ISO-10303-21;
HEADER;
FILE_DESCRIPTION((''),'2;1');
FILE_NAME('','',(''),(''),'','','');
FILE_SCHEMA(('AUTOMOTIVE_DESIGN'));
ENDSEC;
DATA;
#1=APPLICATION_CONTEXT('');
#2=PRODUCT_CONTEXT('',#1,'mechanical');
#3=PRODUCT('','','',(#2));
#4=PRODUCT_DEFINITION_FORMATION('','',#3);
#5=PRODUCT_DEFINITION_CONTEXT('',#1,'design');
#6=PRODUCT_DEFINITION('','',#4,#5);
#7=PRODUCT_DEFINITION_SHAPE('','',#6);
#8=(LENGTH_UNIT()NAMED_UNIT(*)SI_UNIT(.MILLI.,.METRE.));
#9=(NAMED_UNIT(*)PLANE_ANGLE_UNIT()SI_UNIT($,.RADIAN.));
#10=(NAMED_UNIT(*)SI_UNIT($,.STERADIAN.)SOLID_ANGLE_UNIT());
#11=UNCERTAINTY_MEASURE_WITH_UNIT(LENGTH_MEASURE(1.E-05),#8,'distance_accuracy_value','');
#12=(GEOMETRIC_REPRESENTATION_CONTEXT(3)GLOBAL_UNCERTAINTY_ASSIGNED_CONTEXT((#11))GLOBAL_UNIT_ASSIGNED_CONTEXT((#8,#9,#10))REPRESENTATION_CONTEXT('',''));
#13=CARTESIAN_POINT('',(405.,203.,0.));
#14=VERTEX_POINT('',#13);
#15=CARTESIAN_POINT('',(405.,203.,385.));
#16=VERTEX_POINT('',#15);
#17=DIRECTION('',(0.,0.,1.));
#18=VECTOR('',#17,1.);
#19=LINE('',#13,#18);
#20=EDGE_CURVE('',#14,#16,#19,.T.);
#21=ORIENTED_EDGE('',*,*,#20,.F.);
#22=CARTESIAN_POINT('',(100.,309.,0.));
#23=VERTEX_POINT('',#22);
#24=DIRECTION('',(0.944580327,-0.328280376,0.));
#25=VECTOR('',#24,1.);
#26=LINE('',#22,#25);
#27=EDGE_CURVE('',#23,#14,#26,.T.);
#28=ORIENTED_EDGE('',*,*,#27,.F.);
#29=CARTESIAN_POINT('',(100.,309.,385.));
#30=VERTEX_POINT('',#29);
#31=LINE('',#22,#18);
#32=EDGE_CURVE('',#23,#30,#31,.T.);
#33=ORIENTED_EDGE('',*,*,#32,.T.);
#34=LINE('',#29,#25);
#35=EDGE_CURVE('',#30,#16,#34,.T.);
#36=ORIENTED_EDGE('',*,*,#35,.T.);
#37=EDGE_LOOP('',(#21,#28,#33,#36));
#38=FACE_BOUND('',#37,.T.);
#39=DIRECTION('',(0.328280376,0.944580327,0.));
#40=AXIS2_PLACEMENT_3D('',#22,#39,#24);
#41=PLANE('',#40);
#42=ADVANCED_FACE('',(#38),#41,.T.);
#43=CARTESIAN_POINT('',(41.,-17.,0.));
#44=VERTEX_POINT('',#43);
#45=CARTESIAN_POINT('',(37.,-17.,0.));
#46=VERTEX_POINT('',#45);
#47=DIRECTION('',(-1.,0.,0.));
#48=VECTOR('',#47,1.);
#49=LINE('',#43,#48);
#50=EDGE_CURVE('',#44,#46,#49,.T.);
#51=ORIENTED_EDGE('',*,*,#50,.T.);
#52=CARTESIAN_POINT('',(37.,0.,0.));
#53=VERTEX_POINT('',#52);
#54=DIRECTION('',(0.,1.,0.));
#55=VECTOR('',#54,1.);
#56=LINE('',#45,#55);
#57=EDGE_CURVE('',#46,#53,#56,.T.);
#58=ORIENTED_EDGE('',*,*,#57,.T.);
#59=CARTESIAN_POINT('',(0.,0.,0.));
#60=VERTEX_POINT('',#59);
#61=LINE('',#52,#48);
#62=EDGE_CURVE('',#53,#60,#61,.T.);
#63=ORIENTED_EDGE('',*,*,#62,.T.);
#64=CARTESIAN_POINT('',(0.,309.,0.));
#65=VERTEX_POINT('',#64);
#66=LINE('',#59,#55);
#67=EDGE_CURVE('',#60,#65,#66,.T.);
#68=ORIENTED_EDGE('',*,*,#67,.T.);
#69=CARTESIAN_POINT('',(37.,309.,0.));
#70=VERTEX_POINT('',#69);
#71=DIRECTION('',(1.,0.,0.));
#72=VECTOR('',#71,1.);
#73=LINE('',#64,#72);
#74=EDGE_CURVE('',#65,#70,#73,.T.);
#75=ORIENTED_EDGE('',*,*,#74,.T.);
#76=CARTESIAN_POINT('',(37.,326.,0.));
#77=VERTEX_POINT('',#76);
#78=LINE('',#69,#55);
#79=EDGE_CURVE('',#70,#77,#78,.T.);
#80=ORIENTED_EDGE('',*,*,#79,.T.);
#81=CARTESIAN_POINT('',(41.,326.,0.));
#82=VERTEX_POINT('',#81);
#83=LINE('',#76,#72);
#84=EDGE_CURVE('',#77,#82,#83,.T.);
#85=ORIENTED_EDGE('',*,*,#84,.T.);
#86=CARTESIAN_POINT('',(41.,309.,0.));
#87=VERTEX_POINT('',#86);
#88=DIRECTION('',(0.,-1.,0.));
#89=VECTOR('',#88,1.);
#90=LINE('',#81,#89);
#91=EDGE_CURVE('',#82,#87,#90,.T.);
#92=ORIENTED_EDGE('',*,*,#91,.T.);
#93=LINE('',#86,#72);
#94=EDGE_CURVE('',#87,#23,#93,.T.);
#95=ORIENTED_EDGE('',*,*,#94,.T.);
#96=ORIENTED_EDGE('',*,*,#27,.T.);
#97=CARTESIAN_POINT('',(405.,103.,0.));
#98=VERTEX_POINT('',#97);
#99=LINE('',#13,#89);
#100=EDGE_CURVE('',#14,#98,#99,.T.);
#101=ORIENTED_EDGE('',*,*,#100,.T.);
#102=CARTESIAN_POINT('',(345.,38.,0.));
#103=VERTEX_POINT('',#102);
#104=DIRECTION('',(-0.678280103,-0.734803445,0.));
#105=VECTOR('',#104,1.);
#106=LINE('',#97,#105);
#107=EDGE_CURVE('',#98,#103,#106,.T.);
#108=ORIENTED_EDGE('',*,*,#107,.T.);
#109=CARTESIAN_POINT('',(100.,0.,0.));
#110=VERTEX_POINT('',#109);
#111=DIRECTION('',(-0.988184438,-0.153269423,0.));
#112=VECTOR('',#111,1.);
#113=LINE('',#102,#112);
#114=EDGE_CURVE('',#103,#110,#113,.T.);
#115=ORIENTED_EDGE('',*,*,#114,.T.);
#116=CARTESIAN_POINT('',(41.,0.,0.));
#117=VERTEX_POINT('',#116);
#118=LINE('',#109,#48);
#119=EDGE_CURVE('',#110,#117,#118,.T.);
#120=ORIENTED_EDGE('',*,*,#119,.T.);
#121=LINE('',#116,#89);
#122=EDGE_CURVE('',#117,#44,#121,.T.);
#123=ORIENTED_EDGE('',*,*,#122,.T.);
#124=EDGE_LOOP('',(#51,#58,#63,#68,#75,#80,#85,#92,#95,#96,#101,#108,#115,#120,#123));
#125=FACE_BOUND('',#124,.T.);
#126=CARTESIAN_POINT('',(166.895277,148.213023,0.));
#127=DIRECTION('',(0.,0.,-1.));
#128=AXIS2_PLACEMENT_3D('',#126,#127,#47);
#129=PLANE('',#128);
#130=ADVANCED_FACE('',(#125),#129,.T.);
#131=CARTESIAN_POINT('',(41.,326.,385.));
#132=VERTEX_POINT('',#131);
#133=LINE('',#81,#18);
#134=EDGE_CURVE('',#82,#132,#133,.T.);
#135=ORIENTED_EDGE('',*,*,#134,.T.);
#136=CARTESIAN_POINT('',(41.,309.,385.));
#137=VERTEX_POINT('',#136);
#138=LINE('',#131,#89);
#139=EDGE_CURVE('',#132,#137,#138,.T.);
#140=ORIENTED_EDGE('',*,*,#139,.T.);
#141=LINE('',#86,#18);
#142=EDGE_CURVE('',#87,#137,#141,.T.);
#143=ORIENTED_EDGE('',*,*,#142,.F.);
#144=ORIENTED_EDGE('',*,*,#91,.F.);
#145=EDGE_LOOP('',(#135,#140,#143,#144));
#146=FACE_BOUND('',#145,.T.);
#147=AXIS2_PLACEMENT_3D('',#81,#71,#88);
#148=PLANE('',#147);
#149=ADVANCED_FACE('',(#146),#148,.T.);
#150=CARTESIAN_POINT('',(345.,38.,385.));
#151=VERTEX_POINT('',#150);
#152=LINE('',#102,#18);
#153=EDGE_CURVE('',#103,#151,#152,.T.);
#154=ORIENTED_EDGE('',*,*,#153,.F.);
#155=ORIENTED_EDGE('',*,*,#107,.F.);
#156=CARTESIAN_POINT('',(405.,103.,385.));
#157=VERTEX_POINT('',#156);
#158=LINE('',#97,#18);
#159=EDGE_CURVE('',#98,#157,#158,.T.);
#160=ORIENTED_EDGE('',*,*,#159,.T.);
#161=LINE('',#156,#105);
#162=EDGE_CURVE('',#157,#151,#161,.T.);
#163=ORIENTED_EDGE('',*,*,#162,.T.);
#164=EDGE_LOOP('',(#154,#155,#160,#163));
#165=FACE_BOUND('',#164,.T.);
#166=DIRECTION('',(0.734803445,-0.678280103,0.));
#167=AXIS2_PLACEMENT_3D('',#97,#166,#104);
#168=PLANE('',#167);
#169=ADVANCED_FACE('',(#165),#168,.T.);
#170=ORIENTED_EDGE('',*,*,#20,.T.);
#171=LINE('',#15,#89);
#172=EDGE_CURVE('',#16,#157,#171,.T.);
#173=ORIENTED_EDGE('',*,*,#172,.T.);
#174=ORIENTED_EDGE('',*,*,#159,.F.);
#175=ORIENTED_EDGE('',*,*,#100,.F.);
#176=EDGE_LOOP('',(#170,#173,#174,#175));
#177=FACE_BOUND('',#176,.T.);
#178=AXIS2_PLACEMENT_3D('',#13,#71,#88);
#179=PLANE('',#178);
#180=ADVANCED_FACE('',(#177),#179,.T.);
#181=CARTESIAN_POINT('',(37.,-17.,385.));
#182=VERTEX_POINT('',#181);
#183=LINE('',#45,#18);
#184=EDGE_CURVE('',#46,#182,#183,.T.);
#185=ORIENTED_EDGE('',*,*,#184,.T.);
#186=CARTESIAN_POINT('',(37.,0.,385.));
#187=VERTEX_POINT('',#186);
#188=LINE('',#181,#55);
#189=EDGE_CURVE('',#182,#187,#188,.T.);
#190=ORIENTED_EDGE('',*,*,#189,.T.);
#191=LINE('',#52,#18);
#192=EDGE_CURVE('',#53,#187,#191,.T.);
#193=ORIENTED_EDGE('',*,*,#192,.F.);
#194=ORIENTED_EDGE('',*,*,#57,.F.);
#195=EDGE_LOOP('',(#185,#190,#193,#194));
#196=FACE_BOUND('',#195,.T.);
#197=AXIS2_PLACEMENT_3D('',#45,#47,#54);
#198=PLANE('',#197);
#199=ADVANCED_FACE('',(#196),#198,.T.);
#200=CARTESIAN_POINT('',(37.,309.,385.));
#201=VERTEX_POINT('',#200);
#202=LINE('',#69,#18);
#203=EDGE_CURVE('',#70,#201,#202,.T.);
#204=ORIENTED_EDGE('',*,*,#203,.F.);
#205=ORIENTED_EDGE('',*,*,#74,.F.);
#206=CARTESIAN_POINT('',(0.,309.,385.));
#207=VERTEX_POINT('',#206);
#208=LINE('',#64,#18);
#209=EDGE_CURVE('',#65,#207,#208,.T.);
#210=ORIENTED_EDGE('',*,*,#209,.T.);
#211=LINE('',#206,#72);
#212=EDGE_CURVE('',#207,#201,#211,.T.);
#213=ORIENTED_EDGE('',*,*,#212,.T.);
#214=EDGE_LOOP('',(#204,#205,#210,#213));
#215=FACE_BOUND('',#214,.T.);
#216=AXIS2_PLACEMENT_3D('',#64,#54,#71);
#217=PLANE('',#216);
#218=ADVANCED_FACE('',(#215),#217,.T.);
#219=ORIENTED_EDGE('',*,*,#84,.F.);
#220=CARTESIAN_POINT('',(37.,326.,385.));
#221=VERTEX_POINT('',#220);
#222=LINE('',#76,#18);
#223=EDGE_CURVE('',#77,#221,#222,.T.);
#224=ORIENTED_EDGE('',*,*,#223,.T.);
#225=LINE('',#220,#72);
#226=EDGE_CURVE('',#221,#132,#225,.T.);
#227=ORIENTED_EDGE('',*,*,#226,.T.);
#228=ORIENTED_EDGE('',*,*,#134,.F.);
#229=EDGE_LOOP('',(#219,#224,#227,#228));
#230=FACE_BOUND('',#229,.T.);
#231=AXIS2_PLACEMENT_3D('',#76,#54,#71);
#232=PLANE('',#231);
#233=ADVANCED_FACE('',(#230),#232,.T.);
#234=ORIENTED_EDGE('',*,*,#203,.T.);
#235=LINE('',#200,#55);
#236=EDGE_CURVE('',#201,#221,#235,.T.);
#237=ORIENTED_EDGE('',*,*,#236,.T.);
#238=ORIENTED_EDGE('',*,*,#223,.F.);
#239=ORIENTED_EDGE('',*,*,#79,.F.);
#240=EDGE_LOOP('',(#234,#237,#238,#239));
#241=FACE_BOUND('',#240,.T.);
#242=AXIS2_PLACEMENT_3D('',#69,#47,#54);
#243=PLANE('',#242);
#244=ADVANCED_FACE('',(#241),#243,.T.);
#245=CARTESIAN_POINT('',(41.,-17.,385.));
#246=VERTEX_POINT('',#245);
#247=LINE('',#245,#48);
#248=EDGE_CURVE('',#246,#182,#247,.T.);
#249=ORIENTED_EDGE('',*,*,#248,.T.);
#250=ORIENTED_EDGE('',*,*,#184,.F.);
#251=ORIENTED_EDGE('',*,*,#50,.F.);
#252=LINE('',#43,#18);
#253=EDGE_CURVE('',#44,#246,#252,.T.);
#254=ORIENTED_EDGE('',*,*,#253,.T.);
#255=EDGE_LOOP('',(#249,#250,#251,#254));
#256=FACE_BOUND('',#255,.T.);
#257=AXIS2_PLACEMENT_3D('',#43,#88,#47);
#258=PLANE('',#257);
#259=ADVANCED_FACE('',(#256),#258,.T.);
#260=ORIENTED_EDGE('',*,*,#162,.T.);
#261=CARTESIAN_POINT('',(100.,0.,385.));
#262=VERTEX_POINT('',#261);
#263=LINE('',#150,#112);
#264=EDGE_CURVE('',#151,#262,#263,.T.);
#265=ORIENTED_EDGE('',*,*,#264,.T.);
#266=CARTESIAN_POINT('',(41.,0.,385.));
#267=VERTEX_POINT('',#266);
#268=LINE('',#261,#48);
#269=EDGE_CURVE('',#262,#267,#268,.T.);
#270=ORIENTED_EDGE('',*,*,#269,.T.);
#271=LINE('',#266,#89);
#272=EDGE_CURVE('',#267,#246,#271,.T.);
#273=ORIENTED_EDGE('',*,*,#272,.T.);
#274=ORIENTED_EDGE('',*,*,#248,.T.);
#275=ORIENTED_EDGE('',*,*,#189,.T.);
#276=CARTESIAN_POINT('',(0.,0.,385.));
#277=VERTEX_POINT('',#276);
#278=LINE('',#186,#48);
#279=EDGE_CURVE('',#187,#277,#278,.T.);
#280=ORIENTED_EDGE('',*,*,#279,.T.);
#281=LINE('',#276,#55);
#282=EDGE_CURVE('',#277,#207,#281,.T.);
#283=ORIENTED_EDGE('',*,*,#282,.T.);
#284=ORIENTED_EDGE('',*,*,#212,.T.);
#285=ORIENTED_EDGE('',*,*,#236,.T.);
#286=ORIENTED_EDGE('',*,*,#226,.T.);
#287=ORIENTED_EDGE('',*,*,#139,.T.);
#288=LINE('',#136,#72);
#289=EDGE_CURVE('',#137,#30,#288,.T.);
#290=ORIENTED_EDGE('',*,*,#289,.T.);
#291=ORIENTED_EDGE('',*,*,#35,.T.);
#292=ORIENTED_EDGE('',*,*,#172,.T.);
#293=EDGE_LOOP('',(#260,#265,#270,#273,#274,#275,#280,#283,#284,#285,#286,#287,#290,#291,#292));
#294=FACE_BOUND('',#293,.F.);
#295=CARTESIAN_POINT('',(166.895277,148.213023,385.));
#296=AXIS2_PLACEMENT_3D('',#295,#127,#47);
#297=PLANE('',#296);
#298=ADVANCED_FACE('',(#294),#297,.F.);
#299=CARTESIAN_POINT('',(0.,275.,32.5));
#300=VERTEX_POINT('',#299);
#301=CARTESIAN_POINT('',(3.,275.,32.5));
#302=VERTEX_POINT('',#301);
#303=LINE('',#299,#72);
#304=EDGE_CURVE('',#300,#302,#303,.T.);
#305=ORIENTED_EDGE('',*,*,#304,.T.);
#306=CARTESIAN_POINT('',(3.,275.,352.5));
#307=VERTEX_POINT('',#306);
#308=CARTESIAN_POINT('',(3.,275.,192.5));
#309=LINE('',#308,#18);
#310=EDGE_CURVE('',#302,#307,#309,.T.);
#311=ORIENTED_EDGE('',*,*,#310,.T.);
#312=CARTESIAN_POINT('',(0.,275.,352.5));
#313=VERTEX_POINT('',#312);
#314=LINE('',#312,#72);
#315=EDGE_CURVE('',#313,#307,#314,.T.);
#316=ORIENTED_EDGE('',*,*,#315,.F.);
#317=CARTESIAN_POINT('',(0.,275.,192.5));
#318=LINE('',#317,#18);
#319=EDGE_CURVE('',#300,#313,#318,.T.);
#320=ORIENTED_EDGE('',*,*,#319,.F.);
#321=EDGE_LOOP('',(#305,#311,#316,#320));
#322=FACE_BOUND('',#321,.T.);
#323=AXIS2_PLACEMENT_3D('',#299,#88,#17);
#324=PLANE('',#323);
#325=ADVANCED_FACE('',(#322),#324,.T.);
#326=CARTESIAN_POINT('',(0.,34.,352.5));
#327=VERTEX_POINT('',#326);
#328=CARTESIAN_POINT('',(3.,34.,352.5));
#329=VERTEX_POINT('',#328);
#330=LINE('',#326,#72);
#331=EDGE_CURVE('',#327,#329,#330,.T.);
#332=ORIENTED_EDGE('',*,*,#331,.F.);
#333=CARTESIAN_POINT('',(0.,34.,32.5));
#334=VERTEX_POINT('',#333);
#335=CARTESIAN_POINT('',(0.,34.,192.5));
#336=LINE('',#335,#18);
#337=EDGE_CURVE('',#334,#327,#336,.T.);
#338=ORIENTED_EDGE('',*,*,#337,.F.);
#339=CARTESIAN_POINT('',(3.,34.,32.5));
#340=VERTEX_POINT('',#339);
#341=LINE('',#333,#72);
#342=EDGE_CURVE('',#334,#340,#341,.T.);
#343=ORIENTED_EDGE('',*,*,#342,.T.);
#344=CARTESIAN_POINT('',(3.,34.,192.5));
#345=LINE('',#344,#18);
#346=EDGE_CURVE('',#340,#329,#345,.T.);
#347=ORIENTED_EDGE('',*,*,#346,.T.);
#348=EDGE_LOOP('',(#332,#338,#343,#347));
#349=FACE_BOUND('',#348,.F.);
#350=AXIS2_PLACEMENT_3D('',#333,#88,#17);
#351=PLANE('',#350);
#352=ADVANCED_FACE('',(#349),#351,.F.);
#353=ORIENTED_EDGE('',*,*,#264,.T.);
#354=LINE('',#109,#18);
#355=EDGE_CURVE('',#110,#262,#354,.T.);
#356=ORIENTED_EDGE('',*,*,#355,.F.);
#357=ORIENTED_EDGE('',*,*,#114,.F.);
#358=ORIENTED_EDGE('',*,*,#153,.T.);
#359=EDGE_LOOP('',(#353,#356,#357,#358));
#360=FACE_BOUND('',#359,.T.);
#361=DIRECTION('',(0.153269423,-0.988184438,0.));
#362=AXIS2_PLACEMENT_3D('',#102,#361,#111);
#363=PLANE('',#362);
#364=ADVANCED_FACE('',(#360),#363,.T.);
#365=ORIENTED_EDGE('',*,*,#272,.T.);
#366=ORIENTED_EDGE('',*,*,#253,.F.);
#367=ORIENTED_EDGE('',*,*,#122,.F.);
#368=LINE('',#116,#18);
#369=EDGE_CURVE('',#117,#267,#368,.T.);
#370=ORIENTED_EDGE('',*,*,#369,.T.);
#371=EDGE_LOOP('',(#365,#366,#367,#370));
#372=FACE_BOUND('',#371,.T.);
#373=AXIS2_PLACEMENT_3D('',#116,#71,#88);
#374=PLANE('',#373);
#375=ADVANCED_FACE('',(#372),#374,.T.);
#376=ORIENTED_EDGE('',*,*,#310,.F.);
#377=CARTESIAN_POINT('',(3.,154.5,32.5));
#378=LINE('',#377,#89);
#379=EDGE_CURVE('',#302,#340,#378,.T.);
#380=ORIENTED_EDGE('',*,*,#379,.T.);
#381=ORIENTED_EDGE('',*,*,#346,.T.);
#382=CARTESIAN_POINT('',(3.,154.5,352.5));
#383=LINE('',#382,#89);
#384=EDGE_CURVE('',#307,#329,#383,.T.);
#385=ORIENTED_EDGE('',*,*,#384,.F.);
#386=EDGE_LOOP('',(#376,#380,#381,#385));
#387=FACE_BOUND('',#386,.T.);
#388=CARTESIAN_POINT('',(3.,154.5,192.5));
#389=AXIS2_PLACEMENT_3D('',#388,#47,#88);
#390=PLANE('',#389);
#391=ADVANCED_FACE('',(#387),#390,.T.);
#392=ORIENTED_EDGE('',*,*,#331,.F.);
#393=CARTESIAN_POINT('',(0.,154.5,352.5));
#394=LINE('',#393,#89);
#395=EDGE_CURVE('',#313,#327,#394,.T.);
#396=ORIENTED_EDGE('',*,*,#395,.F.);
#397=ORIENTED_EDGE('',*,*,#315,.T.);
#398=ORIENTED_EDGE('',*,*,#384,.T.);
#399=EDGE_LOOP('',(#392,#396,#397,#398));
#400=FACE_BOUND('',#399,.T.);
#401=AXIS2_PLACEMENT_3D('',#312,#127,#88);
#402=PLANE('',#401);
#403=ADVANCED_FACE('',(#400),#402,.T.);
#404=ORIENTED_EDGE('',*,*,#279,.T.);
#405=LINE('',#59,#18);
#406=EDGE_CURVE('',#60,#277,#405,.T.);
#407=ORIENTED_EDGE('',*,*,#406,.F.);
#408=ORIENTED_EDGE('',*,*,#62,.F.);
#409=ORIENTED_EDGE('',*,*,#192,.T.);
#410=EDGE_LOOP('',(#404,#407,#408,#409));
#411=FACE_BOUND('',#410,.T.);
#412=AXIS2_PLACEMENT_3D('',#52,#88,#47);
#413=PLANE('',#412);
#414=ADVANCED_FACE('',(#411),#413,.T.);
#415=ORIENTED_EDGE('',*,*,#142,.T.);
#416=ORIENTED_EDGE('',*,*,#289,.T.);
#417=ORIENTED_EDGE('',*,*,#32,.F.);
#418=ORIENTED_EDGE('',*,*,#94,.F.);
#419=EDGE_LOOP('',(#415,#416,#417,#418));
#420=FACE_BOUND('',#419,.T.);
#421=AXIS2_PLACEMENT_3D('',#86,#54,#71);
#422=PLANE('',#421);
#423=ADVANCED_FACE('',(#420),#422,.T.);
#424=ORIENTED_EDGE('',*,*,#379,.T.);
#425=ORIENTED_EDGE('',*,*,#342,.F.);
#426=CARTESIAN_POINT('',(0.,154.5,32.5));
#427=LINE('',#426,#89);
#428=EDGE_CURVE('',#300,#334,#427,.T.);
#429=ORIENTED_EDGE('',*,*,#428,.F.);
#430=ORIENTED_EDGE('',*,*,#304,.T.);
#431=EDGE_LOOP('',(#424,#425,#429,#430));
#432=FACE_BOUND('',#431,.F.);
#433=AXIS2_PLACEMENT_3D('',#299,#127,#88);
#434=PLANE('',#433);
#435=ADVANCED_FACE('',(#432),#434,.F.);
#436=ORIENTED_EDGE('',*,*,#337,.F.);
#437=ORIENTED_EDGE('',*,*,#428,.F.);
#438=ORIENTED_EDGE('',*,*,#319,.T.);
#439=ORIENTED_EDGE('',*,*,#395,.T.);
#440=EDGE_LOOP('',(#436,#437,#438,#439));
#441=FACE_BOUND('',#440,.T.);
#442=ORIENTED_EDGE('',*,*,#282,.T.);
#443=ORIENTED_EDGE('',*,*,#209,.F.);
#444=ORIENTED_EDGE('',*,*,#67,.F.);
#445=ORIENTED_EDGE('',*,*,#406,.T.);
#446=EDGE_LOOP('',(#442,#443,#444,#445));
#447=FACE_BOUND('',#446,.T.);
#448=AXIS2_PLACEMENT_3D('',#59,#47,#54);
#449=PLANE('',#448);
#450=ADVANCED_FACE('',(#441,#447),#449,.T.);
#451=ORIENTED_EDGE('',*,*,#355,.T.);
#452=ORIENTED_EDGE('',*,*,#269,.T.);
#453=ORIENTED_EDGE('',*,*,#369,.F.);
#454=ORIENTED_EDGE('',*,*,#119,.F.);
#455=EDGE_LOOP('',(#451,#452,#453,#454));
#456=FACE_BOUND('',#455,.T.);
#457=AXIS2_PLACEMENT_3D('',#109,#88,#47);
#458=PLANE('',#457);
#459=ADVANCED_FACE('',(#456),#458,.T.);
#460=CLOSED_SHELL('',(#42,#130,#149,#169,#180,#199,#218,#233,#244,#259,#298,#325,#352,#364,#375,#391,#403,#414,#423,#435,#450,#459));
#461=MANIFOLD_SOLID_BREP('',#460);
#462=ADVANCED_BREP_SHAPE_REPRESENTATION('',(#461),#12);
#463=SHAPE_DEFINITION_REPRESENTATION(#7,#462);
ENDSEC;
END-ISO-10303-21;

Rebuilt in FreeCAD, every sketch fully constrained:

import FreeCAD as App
import Part
import Sketcher
from FreeCAD import Vector
Q = App.Units.Quantity

doc = App.newDocument("Part")
body = doc.addObject("PartDesign::Body", "Body")

sketch1 = body.newObject("Sketcher::SketchObject", "Sketch")
sketch1.AttachmentSupport = (doc.getObject("XY_Plane"), [""])
sketch1.MapMode = "FlatFace"
sketch1.addGeometry([
    Part.LineSegment(Vector(0, 309, 0), Vector(0, 0, 0)),
    Part.LineSegment(Vector(0, 0, 0), Vector(37, 0, 0)),
    Part.LineSegment(Vector(37, 0, 0), Vector(37, -17, 0)),
    Part.LineSegment(Vector(37, -17, 0), Vector(41, -17, 0)),
    Part.LineSegment(Vector(41, -17, 0), Vector(41, 0, 0)),
    Part.LineSegment(Vector(41, 0, 0), Vector(100, 0, 0)),
    Part.LineSegment(Vector(100, 0, 0), Vector(345, 38, 0)),
    Part.LineSegment(Vector(345, 38, 0), Vector(405, 103, 0)),
    Part.LineSegment(Vector(405, 103, 0), Vector(405, 203, 0)),
    Part.LineSegment(Vector(405, 203, 0), Vector(100, 309, 0)),
    Part.LineSegment(Vector(100, 309, 0), Vector(41, 309, 0)),
    Part.LineSegment(Vector(41, 309, 0), Vector(41, 326, 0)),
    Part.LineSegment(Vector(41, 326, 0), Vector(37, 326, 0)),
    Part.LineSegment(Vector(37, 326, 0), Vector(37, 309, 0)),
    Part.LineSegment(Vector(37, 309, 0), Vector(0, 309, 0)),
], False)
sketch1.addConstraint([
    Sketcher.Constraint("Coincident", 0, 2, 1, 1),
    Sketcher.Constraint("Coincident", 1, 2, 2, 1),
    Sketcher.Constraint("Coincident", 2, 2, 3, 1),
    Sketcher.Constraint("Coincident", 3, 2, 4, 1),
    Sketcher.Constraint("Coincident", 4, 2, 5, 1),
    Sketcher.Constraint("Coincident", 5, 2, 6, 1),
    Sketcher.Constraint("Coincident", 6, 2, 7, 1),
    Sketcher.Constraint("Coincident", 7, 2, 8, 1),
    Sketcher.Constraint("Coincident", 8, 2, 9, 1),
    Sketcher.Constraint("Coincident", 9, 2, 10, 1),
    Sketcher.Constraint("Coincident", 10, 2, 11, 1),
    Sketcher.Constraint("Coincident", 11, 2, 12, 1),
    Sketcher.Constraint("Coincident", 12, 2, 13, 1),
    Sketcher.Constraint("Coincident", 13, 2, 14, 1),
    Sketcher.Constraint("Coincident", 14, 2, 0, 1),
    Sketcher.Constraint("Vertical", 0),
    Sketcher.Constraint("Horizontal", 1),
    Sketcher.Constraint("Vertical", 2),
    Sketcher.Constraint("Horizontal", 3),
    Sketcher.Constraint("Vertical", 4),
    Sketcher.Constraint("Horizontal", 5),
    Sketcher.Constraint("Vertical", 8),
    Sketcher.Constraint("Horizontal", 10),
    Sketcher.Constraint("Vertical", 11),
    Sketcher.Constraint("Horizontal", 12),
    Sketcher.Constraint("Vertical", 13),
    Sketcher.Constraint("Horizontal", 14),
    Sketcher.Constraint("Coincident", 0, 2, -1, 1),
    Sketcher.Constraint("PointOnObject", 4, 2, -1),
    Sketcher.Constraint("Horizontal", 10, 2, 13, 2),
    Sketcher.Constraint("Vertical", 5, 2, 9, 2),
    Sketcher.Constraint("Vertical", 4, 2, 10, 2),
    Sketcher.Constraint("Vertical", 2, 2, 12, 2),
    Sketcher.Constraint("Equal", 4, 11),
    Sketcher.Constraint("DistanceX", 1, 1, 1, 2, Q("37 mm")),
    Sketcher.Constraint("DistanceX", 3, 1, 3, 2, Q("4 mm")),
    Sketcher.Constraint("DistanceX", 5, 1, 5, 2, Q("59 mm")),
    Sketcher.Constraint("DistanceY", 0, 2, 0, 1, Q("309 mm")),
    Sketcher.Constraint("DistanceY", 2, 2, 2, 1, Q("17 mm")),
    Sketcher.Constraint("DistanceY", 8, 1, 8, 2, Q("100 mm")),
    Sketcher.Constraint("DistanceX", -1, 1, 6, 2, Q("345 mm")),
    Sketcher.Constraint("DistanceY", -1, 1, 6, 2, Q("38 mm")),
    Sketcher.Constraint("DistanceX", -1, 1, 7, 2, Q("405 mm")),
    Sketcher.Constraint("DistanceY", -1, 1, 7, 2, Q("103 mm")),
])
pad1 = body.newObject("PartDesign::Pad", "Pad")
pad1.Profile = sketch1
pad1.Length = 385

sketch2 = body.newObject("Sketcher::SketchObject", "Sketch001")
sketch2.AttachmentSupport = (doc.getObject("YZ_Plane"), [""])
sketch2.MapMode = "FlatFace"
sketch2.addGeometry([
    Part.LineSegment(Vector(275, 352, 0), Vector(275, 32, 0)),
    Part.LineSegment(Vector(275, 32, 0), Vector(34, 32, 0)),
    Part.LineSegment(Vector(34, 32, 0), Vector(34, 352, 0)),
    Part.LineSegment(Vector(34, 352, 0), Vector(275, 352, 0)),
], False)
sketch2.addConstraint([
    Sketcher.Constraint("Coincident", 0, 2, 1, 1),
    Sketcher.Constraint("Coincident", 1, 2, 2, 1),
    Sketcher.Constraint("Coincident", 2, 2, 3, 1),
    Sketcher.Constraint("Coincident", 3, 2, 0, 1),
    Sketcher.Constraint("Vertical", 0),
    Sketcher.Constraint("Horizontal", 1),
    Sketcher.Constraint("Vertical", 2),
    Sketcher.Constraint("Horizontal", 3),
    Sketcher.Constraint("DistanceX", 1, 2, 1, 1, Q("241 mm")),
    Sketcher.Constraint("DistanceY", 0, 2, 0, 1, Q("320 mm")),
    Sketcher.Constraint("DistanceX", -1, 1, 0, 2, Q("275 mm")),
    Sketcher.Constraint("DistanceY", -1, 1, 0, 2, Q("32.5 mm")),
])
pocket1 = body.newObject("PartDesign::Pocket", "Pocket")
pocket1.Profile = sketch2
pocket1.Length = 3
pocket1.Reversed = True

doc.recompute()
